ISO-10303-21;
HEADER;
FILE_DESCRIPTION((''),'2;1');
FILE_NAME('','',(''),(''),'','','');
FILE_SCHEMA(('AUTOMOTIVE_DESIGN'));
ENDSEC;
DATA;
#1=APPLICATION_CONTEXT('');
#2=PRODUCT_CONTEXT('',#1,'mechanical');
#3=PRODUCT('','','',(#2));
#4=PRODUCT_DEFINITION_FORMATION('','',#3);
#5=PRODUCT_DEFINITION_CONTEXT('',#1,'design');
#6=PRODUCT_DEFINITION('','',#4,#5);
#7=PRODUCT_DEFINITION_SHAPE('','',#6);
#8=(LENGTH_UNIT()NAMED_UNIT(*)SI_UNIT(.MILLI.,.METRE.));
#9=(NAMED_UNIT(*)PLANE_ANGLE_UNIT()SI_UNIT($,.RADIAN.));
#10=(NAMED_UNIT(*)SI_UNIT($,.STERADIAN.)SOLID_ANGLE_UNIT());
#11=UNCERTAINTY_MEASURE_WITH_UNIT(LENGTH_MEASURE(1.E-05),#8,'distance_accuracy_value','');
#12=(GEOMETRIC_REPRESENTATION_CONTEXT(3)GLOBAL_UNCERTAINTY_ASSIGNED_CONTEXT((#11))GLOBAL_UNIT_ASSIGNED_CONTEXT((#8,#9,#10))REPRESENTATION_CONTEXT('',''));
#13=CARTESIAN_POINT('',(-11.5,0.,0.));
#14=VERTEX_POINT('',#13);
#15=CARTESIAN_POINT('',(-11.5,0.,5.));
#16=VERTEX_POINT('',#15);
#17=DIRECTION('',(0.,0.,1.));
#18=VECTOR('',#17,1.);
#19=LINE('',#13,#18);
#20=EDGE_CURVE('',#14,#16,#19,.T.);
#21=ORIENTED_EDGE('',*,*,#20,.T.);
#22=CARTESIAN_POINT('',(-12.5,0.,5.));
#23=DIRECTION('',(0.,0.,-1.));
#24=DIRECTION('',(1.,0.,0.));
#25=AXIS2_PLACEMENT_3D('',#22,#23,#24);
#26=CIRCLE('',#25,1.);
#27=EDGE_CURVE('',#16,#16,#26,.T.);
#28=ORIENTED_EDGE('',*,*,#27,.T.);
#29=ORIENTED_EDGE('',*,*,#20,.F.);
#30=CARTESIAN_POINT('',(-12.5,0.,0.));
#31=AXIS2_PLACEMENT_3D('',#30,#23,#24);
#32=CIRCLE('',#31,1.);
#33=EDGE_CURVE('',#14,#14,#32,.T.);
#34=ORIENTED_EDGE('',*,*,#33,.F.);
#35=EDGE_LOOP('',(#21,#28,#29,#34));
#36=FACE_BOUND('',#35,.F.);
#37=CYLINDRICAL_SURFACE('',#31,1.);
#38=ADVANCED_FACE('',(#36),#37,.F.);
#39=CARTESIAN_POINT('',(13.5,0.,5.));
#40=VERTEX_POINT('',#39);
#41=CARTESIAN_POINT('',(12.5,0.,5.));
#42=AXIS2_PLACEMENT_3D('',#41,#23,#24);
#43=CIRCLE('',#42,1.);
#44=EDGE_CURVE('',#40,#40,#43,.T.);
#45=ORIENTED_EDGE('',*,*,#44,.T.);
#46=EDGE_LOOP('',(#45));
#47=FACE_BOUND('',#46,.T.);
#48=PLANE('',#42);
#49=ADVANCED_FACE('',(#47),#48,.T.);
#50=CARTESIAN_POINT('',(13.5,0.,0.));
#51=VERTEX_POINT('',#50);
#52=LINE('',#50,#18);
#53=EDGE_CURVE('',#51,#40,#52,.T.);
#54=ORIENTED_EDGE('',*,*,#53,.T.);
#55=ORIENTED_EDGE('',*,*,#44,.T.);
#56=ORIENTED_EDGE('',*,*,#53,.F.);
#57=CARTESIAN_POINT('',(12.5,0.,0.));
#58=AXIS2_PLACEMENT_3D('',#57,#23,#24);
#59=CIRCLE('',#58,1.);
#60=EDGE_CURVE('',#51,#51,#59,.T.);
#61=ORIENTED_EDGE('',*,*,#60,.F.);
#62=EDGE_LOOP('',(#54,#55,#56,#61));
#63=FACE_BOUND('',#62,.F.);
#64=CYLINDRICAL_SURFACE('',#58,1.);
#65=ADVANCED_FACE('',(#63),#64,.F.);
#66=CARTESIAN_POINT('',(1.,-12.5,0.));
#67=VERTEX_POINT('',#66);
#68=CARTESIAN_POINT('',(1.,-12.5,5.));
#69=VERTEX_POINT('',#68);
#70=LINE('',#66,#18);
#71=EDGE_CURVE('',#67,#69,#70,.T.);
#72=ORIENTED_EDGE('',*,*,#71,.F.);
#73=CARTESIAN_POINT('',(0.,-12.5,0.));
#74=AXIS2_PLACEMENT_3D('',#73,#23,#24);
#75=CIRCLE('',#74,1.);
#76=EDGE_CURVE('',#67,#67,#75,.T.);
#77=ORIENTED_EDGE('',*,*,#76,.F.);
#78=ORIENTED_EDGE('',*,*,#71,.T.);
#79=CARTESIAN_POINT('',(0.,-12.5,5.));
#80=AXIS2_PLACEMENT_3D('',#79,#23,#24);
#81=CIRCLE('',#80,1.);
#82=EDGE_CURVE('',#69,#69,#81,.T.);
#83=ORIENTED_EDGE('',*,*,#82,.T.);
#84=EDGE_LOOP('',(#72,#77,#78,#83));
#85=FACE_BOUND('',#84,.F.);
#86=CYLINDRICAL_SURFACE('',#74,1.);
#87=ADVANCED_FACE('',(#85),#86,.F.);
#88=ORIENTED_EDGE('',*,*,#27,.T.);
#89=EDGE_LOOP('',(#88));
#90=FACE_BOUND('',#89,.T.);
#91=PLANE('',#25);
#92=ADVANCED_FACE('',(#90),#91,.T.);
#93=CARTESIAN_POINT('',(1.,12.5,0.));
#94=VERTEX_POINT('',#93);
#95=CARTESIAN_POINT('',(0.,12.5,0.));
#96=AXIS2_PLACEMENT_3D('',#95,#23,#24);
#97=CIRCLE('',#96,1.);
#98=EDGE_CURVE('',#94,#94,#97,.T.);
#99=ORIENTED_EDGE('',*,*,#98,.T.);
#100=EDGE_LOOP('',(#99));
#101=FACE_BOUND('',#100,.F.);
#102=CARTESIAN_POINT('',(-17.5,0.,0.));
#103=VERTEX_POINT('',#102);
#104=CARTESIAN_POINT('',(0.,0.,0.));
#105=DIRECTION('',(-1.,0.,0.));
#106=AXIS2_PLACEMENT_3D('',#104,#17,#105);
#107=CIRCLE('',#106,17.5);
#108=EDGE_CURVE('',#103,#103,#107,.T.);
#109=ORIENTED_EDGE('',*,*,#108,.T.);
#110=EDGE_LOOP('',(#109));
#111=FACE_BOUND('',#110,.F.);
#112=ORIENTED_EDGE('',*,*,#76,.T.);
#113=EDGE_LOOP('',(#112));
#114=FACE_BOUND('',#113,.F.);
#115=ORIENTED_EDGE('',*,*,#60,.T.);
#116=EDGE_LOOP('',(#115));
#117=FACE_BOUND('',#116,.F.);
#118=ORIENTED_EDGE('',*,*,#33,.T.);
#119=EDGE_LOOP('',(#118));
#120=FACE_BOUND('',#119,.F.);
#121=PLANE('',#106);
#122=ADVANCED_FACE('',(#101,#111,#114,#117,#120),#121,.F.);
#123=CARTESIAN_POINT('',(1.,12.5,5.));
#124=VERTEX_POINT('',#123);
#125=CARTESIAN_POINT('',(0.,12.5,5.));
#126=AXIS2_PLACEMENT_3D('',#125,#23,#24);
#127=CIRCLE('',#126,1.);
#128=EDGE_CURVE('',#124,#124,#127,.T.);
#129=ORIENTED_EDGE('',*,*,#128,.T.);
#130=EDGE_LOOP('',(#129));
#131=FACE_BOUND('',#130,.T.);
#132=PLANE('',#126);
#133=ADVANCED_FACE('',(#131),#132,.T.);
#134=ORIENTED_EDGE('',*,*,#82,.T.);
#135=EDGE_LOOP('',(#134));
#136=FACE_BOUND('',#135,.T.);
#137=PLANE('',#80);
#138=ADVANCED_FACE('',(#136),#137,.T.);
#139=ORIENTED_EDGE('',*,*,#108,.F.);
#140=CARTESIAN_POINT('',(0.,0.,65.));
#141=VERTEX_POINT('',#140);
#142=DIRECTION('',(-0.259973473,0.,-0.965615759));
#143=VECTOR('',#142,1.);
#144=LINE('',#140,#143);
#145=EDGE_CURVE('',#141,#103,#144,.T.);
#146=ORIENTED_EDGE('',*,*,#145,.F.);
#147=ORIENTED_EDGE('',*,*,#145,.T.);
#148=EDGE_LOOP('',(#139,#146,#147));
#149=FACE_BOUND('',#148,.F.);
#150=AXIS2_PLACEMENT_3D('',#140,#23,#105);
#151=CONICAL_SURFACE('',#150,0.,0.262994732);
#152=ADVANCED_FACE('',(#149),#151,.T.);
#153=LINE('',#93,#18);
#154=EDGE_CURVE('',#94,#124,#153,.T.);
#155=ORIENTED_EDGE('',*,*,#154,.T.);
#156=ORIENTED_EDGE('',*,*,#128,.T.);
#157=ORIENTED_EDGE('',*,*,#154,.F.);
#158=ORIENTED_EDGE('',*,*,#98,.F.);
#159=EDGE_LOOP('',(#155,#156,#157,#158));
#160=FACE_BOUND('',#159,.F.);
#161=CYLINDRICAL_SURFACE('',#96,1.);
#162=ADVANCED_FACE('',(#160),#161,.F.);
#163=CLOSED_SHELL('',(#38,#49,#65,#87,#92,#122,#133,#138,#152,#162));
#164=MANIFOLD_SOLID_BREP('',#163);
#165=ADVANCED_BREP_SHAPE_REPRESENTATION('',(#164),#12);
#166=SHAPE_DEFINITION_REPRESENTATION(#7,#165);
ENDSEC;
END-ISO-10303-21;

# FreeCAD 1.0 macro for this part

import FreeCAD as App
import Part
import Sketcher
from FreeCAD import Vector


def add_polygon(sketch, points):
    """Adds a closed chain of lines whose ends are joined by coincident constraints."""
    first, n = sketch.GeometryCount, len(points)
    for a, b in zip(points, points[1:] + points[:1]):
        sketch.addGeometry(Part.LineSegment(App.Vector(*a, 0), App.Vector(*b, 0)), False)
    for i in range(n):
        sketch.addConstraint(Sketcher.Constraint("Coincident", first + i, 2, first + (i + 1) % n, 1))

doc = App.newDocument("Part")
body = doc.addObject("PartDesign::Body", "Body")

# Sketch on XZ plane
sketch1 = doc.addObject("Sketcher::SketchObject", "Sketch")
body.addObject(sketch1)
sketch1.AttachmentSupport = (doc.XZ_Plane, [""])
sketch1.MapMode = "FlatFace"
add_polygon(sketch1, [(-17.5, 0), (0, 0), (0, 65)])  # lines 0-2
sketch1.addConstraint([
    Sketcher.Constraint("Horizontal", 0),
    Sketcher.Constraint("Vertical", 1),
    Sketcher.Constraint("Coincident", 0, 2, -1, 1),
    Sketcher.Constraint("DistanceY", 1, 1, 1, 2, 65.0),
    Sketcher.Constraint("DistanceX", 0, 1, 0, 2, 17.5),
])
revolution = doc.addObject("PartDesign::Revolution", "Revolution")
body.addObject(revolution)
revolution.Profile = sketch1
revolution.ReferenceAxis = (sketch1, ["V_Axis"])
revolution.Angle = 360

# Sketch on XY plane
sketch2 = doc.addObject("Sketcher::SketchObject", "Sketch001")
body.addObject(sketch2)
sketch2.AttachmentSupport = (doc.XY_Plane, [""])
sketch2.MapMode = "FlatFace"
sketch2.addGeometry([
    Part.Circle(Vector(0, 12.5, 0), Vector(0, 0, 1), 1),
    Part.Circle(Vector(-12.5, 0, 0), Vector(0, 0, 1), 1),
    Part.Circle(Vector(0, -12.5, 0), Vector(0, 0, 1), 1),
    Part.Circle(Vector(12.5, 0, 0), Vector(0, 0, 1), 1),
], False)
sketch2.addConstraint([
    Sketcher.Constraint("Equal", 0, 1),
    Sketcher.Constraint("Equal", 1, 2),
    Sketcher.Constraint("Equal", 2, 3),
    Sketcher.Constraint("Symmetric", 0, 3, 2, 3, -1, 1),
    Sketcher.Constraint("Symmetric", 1, 3, 3, 3, -1, 1),
    Sketcher.Constraint("PointOnObject", 0, 3, -2),
    Sketcher.Constraint("PointOnObject", 1, 3, -1),
    Sketcher.Constraint("Diameter", 0, 2.0),
    Sketcher.Constraint("DistanceY", 2, 3, 0, 3, 25.0),
    Sketcher.Constraint("DistanceX", 1, 3, 3, 3, 25.0),
])
pocket1 = doc.addObject("PartDesign::Pocket", "Pocket")
body.addObject(pocket1)
pocket1.Profile = sketch2
pocket1.Length = 5
pocket1.Reversed = True

doc.recompute()
